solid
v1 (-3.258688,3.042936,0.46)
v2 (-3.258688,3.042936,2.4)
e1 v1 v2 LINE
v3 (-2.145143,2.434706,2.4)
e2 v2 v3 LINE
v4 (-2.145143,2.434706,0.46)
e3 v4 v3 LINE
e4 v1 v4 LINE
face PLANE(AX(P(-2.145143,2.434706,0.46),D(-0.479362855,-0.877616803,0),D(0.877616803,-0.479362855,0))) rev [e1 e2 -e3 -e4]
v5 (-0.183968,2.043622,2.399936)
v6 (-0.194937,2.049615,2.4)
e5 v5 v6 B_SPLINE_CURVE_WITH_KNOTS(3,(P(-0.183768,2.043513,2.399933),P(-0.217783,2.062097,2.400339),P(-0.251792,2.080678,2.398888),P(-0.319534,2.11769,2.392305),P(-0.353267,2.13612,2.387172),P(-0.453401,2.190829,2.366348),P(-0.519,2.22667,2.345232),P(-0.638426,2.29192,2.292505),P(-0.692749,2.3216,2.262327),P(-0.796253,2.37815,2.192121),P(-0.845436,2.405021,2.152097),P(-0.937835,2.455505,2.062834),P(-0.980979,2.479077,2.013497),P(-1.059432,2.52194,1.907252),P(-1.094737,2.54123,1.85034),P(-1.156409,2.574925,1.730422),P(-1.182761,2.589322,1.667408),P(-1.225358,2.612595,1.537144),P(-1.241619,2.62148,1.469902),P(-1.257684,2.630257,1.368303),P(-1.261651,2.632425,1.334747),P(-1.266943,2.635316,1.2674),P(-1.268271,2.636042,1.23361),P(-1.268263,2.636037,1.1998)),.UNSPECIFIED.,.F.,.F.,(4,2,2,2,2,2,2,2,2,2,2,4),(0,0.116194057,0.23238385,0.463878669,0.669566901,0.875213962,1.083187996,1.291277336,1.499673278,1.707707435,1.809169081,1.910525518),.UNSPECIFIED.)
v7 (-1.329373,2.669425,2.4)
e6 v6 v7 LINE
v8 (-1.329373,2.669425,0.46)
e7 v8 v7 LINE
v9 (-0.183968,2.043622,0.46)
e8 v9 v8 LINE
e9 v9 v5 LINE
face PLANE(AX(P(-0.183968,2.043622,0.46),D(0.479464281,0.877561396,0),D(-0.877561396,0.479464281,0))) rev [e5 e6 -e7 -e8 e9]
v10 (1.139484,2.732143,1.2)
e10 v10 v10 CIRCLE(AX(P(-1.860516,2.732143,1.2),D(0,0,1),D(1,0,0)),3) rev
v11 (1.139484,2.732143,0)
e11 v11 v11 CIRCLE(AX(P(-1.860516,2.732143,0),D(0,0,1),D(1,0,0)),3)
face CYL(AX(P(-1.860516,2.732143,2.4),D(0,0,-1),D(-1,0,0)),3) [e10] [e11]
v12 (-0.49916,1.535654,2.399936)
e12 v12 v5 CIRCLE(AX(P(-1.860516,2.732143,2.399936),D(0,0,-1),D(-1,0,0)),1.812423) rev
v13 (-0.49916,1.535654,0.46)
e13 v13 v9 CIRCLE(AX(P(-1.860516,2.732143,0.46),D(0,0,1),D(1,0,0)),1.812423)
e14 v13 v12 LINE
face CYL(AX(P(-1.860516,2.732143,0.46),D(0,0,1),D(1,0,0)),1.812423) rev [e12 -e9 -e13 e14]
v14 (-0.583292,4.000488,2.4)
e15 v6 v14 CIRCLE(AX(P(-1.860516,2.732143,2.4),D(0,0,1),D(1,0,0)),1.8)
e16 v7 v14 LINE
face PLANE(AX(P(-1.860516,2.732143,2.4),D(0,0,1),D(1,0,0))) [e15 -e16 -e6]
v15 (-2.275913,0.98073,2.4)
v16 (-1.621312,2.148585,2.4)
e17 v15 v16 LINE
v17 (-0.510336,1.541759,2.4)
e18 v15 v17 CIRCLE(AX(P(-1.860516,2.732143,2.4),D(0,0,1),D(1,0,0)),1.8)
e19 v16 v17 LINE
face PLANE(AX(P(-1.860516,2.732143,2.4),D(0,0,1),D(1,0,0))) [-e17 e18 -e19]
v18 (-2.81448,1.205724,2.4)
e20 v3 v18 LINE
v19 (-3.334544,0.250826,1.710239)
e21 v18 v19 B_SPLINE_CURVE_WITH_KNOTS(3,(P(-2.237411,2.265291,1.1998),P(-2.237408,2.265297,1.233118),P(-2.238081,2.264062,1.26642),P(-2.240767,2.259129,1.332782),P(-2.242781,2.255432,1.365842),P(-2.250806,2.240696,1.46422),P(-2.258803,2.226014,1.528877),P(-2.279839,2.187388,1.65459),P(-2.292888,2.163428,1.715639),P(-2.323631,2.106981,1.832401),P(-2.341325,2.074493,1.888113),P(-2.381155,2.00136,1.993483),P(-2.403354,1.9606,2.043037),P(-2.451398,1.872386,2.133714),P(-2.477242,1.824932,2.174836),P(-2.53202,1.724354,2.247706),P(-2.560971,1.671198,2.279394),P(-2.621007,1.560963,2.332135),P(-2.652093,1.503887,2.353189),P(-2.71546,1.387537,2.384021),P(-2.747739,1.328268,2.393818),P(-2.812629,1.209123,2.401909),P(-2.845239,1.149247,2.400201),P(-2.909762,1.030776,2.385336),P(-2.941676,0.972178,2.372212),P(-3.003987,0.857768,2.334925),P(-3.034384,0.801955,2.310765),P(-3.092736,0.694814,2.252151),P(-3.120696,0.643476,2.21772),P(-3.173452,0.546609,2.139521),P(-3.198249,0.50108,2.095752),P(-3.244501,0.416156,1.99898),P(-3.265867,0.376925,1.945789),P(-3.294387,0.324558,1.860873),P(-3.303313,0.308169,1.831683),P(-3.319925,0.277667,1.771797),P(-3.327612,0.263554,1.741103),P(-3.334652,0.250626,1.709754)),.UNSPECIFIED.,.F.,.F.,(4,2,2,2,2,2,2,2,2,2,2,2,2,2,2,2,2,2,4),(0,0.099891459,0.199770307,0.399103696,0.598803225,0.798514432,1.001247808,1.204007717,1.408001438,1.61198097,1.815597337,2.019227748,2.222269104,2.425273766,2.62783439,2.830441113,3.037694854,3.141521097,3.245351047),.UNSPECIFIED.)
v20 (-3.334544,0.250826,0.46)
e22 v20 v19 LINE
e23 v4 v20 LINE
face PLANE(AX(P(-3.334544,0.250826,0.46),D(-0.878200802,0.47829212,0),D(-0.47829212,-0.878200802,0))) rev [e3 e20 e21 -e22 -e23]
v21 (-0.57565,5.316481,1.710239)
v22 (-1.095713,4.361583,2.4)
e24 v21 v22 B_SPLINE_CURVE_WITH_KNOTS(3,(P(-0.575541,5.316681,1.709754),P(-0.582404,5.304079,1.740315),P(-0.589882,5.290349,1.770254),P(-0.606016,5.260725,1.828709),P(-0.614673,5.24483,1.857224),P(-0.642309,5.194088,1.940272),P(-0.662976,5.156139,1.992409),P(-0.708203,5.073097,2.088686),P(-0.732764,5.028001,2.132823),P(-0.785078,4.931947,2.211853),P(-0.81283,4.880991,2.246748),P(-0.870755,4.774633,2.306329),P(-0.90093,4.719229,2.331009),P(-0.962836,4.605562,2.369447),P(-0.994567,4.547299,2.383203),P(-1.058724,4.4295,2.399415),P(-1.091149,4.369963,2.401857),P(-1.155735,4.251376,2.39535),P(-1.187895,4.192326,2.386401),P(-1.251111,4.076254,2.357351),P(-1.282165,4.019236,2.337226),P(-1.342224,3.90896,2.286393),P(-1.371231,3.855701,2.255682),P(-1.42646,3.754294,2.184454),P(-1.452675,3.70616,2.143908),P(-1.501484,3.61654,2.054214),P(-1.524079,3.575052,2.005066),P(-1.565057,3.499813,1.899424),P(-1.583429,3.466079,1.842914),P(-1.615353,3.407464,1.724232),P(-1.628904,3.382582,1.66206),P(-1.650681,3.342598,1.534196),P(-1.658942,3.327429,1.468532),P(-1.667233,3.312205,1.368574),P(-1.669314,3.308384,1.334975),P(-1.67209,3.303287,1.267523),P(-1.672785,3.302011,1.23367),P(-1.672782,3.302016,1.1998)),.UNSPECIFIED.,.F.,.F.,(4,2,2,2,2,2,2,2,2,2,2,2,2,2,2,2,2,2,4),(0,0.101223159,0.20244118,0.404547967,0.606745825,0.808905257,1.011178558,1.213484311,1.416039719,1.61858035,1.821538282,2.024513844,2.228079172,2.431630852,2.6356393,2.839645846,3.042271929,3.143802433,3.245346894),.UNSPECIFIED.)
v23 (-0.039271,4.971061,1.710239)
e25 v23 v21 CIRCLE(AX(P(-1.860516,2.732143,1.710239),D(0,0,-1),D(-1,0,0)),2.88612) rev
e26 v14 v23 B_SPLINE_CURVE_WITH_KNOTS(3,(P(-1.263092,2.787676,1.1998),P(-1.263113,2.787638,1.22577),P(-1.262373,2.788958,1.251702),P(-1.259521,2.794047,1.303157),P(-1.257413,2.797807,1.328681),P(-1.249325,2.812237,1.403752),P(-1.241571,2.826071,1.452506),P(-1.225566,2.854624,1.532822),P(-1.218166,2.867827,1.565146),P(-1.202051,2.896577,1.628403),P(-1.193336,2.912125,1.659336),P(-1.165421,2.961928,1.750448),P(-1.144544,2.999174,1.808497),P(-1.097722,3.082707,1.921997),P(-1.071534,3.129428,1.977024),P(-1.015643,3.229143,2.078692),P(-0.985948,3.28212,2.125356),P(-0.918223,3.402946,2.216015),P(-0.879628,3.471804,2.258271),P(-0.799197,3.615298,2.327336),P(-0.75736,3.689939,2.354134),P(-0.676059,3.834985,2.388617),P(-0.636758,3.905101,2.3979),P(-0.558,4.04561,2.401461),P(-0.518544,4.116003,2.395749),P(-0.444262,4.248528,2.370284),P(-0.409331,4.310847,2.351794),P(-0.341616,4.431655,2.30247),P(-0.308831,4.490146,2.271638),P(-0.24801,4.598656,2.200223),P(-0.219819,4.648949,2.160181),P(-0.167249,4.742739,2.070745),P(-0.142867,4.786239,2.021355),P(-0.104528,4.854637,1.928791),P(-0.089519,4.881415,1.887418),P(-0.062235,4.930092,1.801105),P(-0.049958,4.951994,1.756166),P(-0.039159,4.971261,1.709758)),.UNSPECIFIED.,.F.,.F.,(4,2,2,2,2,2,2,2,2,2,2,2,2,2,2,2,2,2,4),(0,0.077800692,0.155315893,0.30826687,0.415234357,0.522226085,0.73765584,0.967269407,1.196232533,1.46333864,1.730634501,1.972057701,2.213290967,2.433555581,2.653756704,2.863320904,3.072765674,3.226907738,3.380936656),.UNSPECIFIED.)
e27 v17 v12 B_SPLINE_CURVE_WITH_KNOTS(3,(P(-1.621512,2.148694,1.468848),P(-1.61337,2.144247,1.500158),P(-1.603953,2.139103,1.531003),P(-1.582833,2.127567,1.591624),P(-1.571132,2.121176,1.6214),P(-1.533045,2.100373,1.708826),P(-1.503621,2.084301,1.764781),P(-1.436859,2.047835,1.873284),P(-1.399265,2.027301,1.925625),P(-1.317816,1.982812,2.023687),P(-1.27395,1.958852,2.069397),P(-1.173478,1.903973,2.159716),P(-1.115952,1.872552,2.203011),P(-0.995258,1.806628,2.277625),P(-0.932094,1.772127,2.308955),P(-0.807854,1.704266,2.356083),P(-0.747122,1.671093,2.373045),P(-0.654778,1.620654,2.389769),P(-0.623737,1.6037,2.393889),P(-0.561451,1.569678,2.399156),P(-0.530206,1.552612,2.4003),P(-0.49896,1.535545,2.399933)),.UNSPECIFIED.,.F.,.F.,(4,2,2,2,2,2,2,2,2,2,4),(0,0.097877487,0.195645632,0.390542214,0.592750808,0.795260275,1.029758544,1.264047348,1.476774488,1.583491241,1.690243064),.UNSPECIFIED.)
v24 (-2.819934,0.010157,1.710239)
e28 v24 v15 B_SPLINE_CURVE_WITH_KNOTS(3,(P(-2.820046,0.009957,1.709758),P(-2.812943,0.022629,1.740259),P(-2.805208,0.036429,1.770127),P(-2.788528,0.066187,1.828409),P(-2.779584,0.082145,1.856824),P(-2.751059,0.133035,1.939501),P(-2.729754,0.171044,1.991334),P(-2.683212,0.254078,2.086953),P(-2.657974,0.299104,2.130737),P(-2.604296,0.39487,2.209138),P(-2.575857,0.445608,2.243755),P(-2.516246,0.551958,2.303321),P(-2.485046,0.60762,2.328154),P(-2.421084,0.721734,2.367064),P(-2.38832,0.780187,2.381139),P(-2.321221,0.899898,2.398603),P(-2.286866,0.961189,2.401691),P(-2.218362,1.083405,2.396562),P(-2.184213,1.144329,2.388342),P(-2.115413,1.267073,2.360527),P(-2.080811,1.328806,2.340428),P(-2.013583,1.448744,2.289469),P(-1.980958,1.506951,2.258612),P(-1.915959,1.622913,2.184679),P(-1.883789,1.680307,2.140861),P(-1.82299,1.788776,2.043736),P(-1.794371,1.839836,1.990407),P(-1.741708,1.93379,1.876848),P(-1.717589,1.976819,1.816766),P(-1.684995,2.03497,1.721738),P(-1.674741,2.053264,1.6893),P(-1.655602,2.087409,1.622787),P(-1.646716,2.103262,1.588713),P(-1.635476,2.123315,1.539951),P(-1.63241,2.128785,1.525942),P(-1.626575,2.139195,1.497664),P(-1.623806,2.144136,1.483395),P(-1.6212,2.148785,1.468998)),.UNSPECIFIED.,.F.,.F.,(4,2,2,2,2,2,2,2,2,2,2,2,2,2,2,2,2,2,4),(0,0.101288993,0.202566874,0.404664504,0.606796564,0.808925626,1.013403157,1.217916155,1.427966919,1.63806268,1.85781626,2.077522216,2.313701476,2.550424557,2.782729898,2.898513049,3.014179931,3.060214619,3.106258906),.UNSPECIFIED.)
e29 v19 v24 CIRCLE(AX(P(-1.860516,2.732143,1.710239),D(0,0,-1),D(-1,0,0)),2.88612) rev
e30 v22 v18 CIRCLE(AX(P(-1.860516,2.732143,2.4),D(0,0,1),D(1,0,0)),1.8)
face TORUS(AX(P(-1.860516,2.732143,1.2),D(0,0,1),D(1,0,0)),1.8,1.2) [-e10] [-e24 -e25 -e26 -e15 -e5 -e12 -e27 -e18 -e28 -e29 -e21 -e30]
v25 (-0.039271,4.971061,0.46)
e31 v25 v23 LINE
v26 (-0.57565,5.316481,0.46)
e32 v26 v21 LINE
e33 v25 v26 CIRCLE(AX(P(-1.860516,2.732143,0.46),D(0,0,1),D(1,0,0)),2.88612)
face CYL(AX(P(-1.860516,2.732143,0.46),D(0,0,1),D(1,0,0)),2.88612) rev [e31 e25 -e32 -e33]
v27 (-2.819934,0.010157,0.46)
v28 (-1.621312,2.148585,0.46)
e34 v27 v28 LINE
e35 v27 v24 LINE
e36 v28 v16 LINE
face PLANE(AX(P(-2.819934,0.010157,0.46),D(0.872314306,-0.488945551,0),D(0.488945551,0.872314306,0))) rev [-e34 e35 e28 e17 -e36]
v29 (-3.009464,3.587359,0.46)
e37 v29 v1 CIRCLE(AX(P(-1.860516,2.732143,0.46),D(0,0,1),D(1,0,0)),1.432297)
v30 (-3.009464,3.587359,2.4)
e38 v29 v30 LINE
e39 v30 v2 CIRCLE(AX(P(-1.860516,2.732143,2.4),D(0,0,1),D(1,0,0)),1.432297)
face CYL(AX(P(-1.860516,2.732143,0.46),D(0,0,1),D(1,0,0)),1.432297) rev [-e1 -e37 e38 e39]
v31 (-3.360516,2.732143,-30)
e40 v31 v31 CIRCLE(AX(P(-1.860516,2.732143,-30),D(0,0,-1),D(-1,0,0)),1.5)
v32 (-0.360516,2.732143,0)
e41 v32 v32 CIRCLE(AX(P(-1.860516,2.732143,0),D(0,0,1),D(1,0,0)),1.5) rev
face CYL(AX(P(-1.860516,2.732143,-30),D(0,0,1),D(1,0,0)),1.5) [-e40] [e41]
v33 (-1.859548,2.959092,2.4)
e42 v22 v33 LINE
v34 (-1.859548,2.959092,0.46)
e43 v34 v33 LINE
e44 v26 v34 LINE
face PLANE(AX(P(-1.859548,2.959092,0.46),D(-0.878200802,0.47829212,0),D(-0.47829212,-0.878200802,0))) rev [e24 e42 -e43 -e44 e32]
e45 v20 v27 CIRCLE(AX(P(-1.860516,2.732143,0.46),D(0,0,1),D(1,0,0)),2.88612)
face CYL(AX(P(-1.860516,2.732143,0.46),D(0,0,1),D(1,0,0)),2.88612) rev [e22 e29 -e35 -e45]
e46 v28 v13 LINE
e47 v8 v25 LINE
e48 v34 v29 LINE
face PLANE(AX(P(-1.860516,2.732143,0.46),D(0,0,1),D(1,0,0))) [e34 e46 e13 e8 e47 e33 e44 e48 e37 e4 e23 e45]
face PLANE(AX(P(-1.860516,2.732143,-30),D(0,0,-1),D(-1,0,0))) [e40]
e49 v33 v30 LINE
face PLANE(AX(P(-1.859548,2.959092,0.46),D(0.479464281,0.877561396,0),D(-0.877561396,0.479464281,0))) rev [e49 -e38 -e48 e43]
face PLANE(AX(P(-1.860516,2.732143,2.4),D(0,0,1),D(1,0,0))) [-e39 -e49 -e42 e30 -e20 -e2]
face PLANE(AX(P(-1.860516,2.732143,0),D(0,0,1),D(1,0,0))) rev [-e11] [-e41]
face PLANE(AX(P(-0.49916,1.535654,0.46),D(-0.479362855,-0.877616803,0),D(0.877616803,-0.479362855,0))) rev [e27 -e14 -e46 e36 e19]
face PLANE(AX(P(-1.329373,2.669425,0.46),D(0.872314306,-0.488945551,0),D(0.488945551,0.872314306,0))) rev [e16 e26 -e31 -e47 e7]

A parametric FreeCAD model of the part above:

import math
import FreeCAD as App
import Part
import Sketcher
from FreeCAD import Vector


def edges_at(feature, points):
    """Names of the edges that pass closest to the given points."""
    edges = feature.Shape.Edges
    near = lambda p: min(range(len(edges)), key=lambda i: edges[i].distToShape(Part.Vertex(*p))[0])
    return sorted({f"Edge{near(p) + 1}" for p in points})

doc = App.newDocument("Part")
body = doc.addObject("PartDesign::Body", "Body")

# Sketch on XY plane
sketch1 = doc.addObject("Sketcher::SketchObject", "Sketch")
body.addObject(sketch1)
sketch1.AttachmentSupport = (doc.XY_Plane, [""])
sketch1.MapMode = "FlatFace"
sketch1.addGeometry(Part.Circle(Vector(-1.9, 2.7, 0), Vector(0, 0, 1), 3), False)
sketch1.addConstraint([
    Sketcher.Constraint("Diameter", 0, 6.0),
    Sketcher.Constraint("DistanceX", 0, 3, -1, 1, 1.860516),
    Sketcher.Constraint("DistanceY", -1, 1, 0, 3, 2.732143),
])
pad1 = doc.addObject("PartDesign::Pad", "Pad")
body.addObject(pad1)
pad1.Profile = sketch1
pad1.Length = 2.4

# Sketch on XY plane
sketch2 = doc.addObject("Sketcher::SketchObject", "Sketch001")
body.addObject(sketch2)
sketch2.AttachmentSupport = (doc.XY_Plane, [""])
sketch2.MapMode = "FlatFace"
sketch2.addGeometry(Part.Circle(Vector(-1.9, 2.7, 0), Vector(0, 0, 1), 1.5), False)
sketch2.addConstraint([
    Sketcher.Constraint("Diameter", 0, 3.0),
    Sketcher.Constraint("DistanceX", 0, 3, -1, 1, 1.860516),
    Sketcher.Constraint("DistanceY", -1, 1, 0, 3, 2.732143),
])
pad2 = doc.addObject("PartDesign::Pad", "Pad001")
body.addObject(pad2)
pad2.Profile = sketch2
pad2.Length = 30
pad2.Reversed = True
doc.recompute()

fillet = doc.addObject("PartDesign::Fillet", "Fillet")
body.addObject(fillet)
fillet.Base = (pad2, edges_at(pad2, [(-4.861, 2.732, 2.4)]))
fillet.Radius = 1.2

# Sketch on XY plane
sketch3 = doc.addObject("Sketcher::SketchObject", "Sketch002")
body.addObject(sketch3)
sketch3.AttachmentSupport = (doc.XY_Plane, [""])
sketch3.MapMode = "FlatFace"
sketch3.AttachmentOffset = App.Placement(Vector(0, 0, 2.4), App.Rotation())
sketch3.addGeometry([
    Part.LineSegment(Vector(-0.57565, 5.316481, 0), Vector(-1.859548, 2.959092, 0)),  # 0
    Part.LineSegment(Vector(-1.859548, 2.959092, 0), Vector(-3.009464, 3.587359, 0)),  # 1
    Part.ArcOfCircle(Part.Circle(Vector(-1.860516, 2.732143, 0), Vector(0, 0, 1), 1.432297), math.radians(143.337927), math.radians(167.467762)),  # 2
    Part.LineSegment(Vector(-3.258688, 3.042936, 0), Vector(-2.145143, 2.434706, 0)),  # 3
    Part.LineSegment(Vector(-2.145143, 2.434706, 0), Vector(-3.334544, 0.250826, 0)),  # 4
    Part.ArcOfCircle(Part.Circle(Vector(-1.860516, 2.732143, 0), Vector(0, 0, 1), 2.88612), math.radians(-120.712451), math.radians(-109.416009)),  # 5
    Part.LineSegment(Vector(-2.819934, 0.010157, 0), Vector(-1.621312, 2.148585, 0)),  # 6
    Part.LineSegment(Vector(-1.621312, 2.148585, 0), Vector(-0.49916, 1.535654, 0)),  # 7
    Part.ArcOfCircle(Part.Circle(Vector(-1.860516, 2.732143, 0), Vector(0, 0, 1), 1.812423), math.radians(-41.312055), math.radians(-22.326858)),  # 8
    Part.LineSegment(Vector(-0.183968, 2.043622, 0), Vector(-1.329373, 2.669425, 0)),  # 9
    Part.LineSegment(Vector(-1.329373, 2.669425, 0), Vector(-0.039271, 4.971061, 0)),  # 10
    Part.ArcOfCircle(Part.Circle(Vector(-1.860516, 2.732143, 0), Vector(0, 0, 1), 2.88612), math.radians(50.87341), math.radians(63.564618)),  # 11
], False)
sketch3.addConstraint([
    Sketcher.Constraint("Coincident", 0, 2, 1, 1),
    Sketcher.Constraint("Coincident", 1, 2, 2, 1),
    Sketcher.Constraint("Coincident", 2, 2, 3, 1),
    Sketcher.Constraint("Coincident", 3, 2, 4, 1),
    Sketcher.Constraint("Coincident", 4, 2, 5, 1),
    Sketcher.Constraint("Coincident", 5, 2, 6, 1),
    Sketcher.Constraint("Coincident", 6, 2, 7, 1),
    Sketcher.Constraint("Coincident", 7, 2, 8, 1),
    Sketcher.Constraint("Coincident", 8, 2, 9, 1),
    Sketcher.Constraint("Coincident", 9, 2, 10, 1),
    Sketcher.Constraint("Coincident", 10, 2, 11, 1),
    Sketcher.Constraint("Coincident", 11, 2, 0, 1),
    Sketcher.Constraint("Coincident", 5, 3, 2, 3),
    Sketcher.Constraint("Coincident", 8, 3, 2, 3),
    Sketcher.Constraint("Coincident", 11, 3, 2, 3),
    Sketcher.Constraint("Radius", 5, 2.88612),
    Sketcher.Constraint("Radius", 11, 2.88612),
    Sketcher.Constraint("Radius", 2, 1.432297),
    Sketcher.Constraint("Radius", 8, 1.812423),
    Sketcher.Constraint("DistanceX", 4, 2, 3, 2, 1.189401),
    Sketcher.Constraint("DistanceX", 9, 2, 10, 2, 1.290102),
    Sketcher.Constraint("DistanceX", 0, 2, 11, 2, 1.283899),
    Sketcher.Constraint("Distance", 0, 2.68434),
    Sketcher.Constraint("Distance", 3, 1.268828),
    Sketcher.Constraint("Distance", 6, 2.451442),
    Sketcher.Constraint("Distance", 10, 2.638539),
    Sketcher.Constraint("DistanceX", 0, 2, -1, 1, 1.859548),
    Sketcher.Constraint("DistanceY", -1, 1, 0, 2, 2.959092),
    Sketcher.Constraint("DistanceY", -1, 1, 1, 2, 3.587359),
    Sketcher.Constraint("DistanceX", 7, 2, -1, 1, 0.49916),
    Sketcher.Constraint("DistanceY", -1, 1, 8, 2, 2.043622),
    Sketcher.Constraint("DistanceX", 10, 2, -1, 1, 0.039271),
    Sketcher.Constraint("DistanceY", -1, 1, 10, 2, 4.971061),
    Sketcher.Constraint("DistanceX", 2, 2, 0, 2, 1.39914),
    Sketcher.Constraint("DistanceY", 4, 2, 3, 2, 2.18388),
    Sketcher.Constraint("DistanceX", 4, 2, 5, 2, 0.51461),
    Sketcher.Constraint("DistanceX", 3, 2, 6, 2, 0.523831),
])
pocket1 = doc.addObject("PartDesign::Pocket", "Pocket")
body.addObject(pocket1)
pocket1.Profile = sketch3
pocket1.Length = 1.94

doc.recompute()
